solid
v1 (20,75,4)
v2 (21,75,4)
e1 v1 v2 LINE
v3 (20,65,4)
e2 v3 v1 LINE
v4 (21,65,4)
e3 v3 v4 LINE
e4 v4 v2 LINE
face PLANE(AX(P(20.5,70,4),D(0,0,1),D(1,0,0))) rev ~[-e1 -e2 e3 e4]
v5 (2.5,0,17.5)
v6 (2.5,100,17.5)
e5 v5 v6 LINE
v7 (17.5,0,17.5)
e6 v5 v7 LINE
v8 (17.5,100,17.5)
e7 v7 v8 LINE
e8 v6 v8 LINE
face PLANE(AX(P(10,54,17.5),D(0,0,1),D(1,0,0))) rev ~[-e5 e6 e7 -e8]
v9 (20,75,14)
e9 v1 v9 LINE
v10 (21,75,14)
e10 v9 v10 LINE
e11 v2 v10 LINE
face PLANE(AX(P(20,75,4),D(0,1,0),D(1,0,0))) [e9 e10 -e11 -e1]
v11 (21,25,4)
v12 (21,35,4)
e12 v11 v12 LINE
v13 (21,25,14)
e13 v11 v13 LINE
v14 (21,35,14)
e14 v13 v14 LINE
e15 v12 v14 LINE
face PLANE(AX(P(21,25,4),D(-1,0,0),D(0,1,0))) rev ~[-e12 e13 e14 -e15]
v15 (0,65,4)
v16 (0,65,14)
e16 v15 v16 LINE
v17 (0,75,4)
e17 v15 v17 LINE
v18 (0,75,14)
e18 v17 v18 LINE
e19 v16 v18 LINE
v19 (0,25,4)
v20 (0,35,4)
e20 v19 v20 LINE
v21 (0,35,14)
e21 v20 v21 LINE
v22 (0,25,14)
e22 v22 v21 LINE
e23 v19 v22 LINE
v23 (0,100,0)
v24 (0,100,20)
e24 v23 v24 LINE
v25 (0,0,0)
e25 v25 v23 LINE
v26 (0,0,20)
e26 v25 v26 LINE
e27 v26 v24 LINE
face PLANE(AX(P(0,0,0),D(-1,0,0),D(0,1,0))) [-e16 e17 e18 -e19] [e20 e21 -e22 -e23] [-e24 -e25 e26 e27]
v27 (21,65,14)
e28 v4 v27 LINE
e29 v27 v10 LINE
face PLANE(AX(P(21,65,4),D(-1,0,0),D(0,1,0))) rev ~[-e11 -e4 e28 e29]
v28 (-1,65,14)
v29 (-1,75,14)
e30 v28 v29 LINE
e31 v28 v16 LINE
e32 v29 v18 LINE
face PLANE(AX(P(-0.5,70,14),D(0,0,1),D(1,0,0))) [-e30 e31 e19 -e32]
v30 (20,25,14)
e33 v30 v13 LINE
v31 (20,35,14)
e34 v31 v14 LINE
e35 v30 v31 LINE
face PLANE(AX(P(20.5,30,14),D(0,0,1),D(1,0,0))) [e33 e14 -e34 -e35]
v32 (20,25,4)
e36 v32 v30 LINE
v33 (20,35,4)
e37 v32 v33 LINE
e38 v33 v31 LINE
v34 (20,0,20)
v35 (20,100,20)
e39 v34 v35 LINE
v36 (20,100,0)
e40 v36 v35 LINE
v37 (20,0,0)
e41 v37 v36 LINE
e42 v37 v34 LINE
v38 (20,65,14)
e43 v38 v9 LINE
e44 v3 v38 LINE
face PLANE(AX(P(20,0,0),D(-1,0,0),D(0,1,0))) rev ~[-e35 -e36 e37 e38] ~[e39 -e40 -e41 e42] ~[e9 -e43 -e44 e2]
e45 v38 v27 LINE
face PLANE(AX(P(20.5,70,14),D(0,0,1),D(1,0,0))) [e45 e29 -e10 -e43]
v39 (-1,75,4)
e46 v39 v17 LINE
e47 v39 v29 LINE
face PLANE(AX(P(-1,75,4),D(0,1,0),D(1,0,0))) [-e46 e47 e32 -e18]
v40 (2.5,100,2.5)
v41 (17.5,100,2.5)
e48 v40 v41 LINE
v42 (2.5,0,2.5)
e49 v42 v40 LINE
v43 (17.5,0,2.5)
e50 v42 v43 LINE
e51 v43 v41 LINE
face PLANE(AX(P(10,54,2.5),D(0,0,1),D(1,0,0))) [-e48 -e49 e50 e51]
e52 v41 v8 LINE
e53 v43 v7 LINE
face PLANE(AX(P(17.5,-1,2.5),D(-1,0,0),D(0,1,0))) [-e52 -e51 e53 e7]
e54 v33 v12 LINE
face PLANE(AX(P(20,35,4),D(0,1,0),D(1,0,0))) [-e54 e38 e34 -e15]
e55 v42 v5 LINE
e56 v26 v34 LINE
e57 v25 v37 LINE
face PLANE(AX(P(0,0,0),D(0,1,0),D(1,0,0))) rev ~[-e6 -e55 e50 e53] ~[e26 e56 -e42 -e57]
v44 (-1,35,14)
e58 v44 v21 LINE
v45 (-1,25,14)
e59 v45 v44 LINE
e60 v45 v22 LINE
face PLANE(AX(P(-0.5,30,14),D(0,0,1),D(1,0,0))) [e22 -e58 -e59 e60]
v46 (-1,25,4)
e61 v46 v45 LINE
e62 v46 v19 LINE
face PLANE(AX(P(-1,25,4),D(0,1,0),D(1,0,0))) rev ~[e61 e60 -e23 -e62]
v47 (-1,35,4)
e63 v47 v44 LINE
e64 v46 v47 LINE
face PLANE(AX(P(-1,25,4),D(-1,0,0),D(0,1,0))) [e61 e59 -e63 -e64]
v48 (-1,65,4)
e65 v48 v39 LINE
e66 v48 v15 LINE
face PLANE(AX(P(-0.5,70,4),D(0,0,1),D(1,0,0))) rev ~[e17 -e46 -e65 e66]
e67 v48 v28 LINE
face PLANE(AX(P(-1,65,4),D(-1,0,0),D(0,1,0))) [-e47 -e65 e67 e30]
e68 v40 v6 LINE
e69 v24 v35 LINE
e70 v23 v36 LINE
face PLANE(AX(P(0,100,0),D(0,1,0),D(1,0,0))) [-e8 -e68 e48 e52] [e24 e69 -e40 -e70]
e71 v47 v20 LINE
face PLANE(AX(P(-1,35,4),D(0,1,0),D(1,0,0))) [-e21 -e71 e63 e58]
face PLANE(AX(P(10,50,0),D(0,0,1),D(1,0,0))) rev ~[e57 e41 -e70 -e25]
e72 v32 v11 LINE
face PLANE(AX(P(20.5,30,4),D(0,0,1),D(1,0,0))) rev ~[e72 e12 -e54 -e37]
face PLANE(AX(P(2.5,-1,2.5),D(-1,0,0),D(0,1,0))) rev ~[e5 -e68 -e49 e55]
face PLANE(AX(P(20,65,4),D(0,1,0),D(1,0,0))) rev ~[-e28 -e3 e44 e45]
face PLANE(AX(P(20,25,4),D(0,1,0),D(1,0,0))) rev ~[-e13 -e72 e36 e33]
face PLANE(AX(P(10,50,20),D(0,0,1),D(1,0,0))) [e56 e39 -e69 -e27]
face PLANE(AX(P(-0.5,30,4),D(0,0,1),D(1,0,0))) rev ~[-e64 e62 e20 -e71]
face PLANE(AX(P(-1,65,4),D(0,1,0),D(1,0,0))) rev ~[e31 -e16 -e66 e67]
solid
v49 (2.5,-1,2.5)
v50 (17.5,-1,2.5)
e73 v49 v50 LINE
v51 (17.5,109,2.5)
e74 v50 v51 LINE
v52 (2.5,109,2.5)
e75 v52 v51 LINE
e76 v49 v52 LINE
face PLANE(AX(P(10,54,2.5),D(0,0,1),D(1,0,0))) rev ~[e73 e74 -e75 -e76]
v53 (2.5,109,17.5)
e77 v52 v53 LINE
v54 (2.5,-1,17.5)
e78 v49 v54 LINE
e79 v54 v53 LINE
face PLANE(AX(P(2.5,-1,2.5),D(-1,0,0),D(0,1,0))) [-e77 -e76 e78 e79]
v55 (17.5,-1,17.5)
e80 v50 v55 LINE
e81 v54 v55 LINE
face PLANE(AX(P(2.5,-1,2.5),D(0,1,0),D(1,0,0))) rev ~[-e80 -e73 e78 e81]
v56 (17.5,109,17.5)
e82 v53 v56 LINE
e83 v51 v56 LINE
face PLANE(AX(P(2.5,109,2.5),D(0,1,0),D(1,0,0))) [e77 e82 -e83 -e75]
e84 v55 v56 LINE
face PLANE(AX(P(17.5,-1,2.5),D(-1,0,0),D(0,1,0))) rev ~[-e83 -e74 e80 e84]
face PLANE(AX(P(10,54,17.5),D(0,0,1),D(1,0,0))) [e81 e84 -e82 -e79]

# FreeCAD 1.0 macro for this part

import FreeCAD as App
import Part
import Sketcher

V = App.Vector

doc = App.newDocument("Part")
params = doc.addObject("Spreadsheet::Sheet", "Params")
for row, (alias, value) in enumerate([
    ("sketch1_width", "1 mm"),
    ("sketch1_height", "10 mm"),
    ("pad1_length", "10 mm"),
    ("sketch2_width", "1 mm"),
    ("sketch2_height", "10 mm"),
    ("pad2_length", "10 mm"),
    ("sketch3_width", "1 mm"),
    ("sketch3_height", "10 mm"),
    ("pad3_length", "10 mm"),
    ("sketch4_width", "1 mm"),
    ("sketch4_height", "10 mm"),
    ("pad4_length", "10 mm"),
    ("sketch5_width", "15 mm"),
    ("sketch5_height", "110 mm"),
    ("pad5_length", "15 mm"),
    ("sketch6_width", "20 mm"),
    ("sketch6_height", "100 mm"),
    ("pad6_length", "20 mm"),
    ("sketch7_width", "15 mm"),
    ("sketch7_height", "110 mm"),
    ("pad7_length", "15 mm"),
], start=1):
    params.set(f"A{row}", alias)
    params.set(f"B{row}", "=" + value)
    params.setAlias(f"B{row}", alias)

body = doc.addObject("PartDesign::Body", "Body")

sketch1 = body.newObject("Sketcher::SketchObject", "Sketch")
sketch1.AttachmentSupport = (doc.getObject("XY_Plane"), [""])
sketch1.MapMode = "FlatFace"
sketch1.AttachmentOffset = App.Placement(V(0, 0, 4), App.Rotation())
sketch1.addGeometry(Part.LineSegment(V(20, 35, 0), V(20, 25, 0)), False)
sketch1.addGeometry(Part.LineSegment(V(20, 25, 0), V(21, 25, 0)), False)
sketch1.addGeometry(Part.LineSegment(V(21, 25, 0), V(21, 35, 0)), False)
sketch1.addGeometry(Part.LineSegment(V(21, 35, 0), V(20, 35, 0)), False)
sketch1.addConstraint(Sketcher.Constraint("Coincident", 0, 2, 1, 1))
sketch1.addConstraint(Sketcher.Constraint("Coincident", 1, 2, 2, 1))
sketch1.addConstraint(Sketcher.Constraint("Coincident", 2, 2, 3, 1))
sketch1.addConstraint(Sketcher.Constraint("Coincident", 3, 2, 0, 1))
sketch1.addConstraint(Sketcher.Constraint("Vertical", 0))
sketch1.addConstraint(Sketcher.Constraint("Horizontal", 1))
sketch1.addConstraint(Sketcher.Constraint("Vertical", 2))
sketch1.addConstraint(Sketcher.Constraint("Horizontal", 3))
sketch1.addConstraint(Sketcher.Constraint("DistanceX", 1, 1, 1, 2, 1.0))
sketch1.addConstraint(Sketcher.Constraint("DistanceY", 0, 2, 0, 1, 10.0))
sketch1.addConstraint(Sketcher.Constraint("DistanceX", -1, 1, 0, 2, 20.0))
sketch1.addConstraint(Sketcher.Constraint("DistanceY", -1, 1, 0, 2, 25.0))
sketch1.setExpression("Constraints[8]", "Params.sketch1_width")
sketch1.setExpression("Constraints[9]", "Params.sketch1_height")
pad1 = body.newObject("PartDesign::Pad", "Pad")
pad1.Profile = sketch1
pad1.setExpression("Length", "Params.pad1_length")
body2 = doc.addObject("PartDesign::Body", "Body001")

sketch2 = body2.newObject("Sketcher::SketchObject", "Sketch001")
sketch2.AttachmentSupport = (doc.getObject("XY_Plane001"), [""])
sketch2.MapMode = "FlatFace"
sketch2.AttachmentOffset = App.Placement(V(0, 0, 4), App.Rotation())
sketch2.addGeometry(Part.LineSegment(V(20, 75, 0), V(20, 65, 0)), False)
sketch2.addGeometry(Part.LineSegment(V(20, 65, 0), V(21, 65, 0)), False)
sketch2.addGeometry(Part.LineSegment(V(21, 65, 0), V(21, 75, 0)), False)
sketch2.addGeometry(Part.LineSegment(V(21, 75, 0), V(20, 75, 0)), False)
sketch2.addConstraint(Sketcher.Constraint("Coincident", 0, 2, 1, 1))
sketch2.addConstraint(Sketcher.Constraint("Coincident", 1, 2, 2, 1))
sketch2.addConstraint(Sketcher.Constraint("Coincident", 2, 2, 3, 1))
sketch2.addConstraint(Sketcher.Constraint("Coincident", 3, 2, 0, 1))
sketch2.addConstraint(Sketcher.Constraint("Vertical", 0))
sketch2.addConstraint(Sketcher.Constraint("Horizontal", 1))
sketch2.addConstraint(Sketcher.Constraint("Vertical", 2))
sketch2.addConstraint(Sketcher.Constraint("Horizontal", 3))
sketch2.addConstraint(Sketcher.Constraint("DistanceX", 1, 1, 1, 2, 1.0))
sketch2.addConstraint(Sketcher.Constraint("DistanceY", 0, 2, 0, 1, 10.0))
sketch2.addConstraint(Sketcher.Constraint("DistanceX", -1, 1, 0, 2, 20.0))
sketch2.addConstraint(Sketcher.Constraint("DistanceY", -1, 1, 0, 2, 65.0))
sketch2.setExpression("Constraints[8]", "Params.sketch2_width")
sketch2.setExpression("Constraints[9]", "Params.sketch2_height")
pad2 = body2.newObject("PartDesign::Pad", "Pad001")
pad2.Profile = sketch2
pad2.setExpression("Length", "Params.pad2_length")
body3 = doc.addObject("PartDesign::Body", "Body002")

sketch3 = body3.newObject("Sketcher::SketchObject", "Sketch002")
sketch3.AttachmentSupport = (doc.getObject("XY_Plane002"), [""])
sketch3.MapMode = "FlatFace"
sketch3.AttachmentOffset = App.Placement(V(0, 0, 4), App.Rotation())
sketch3.addGeometry(Part.LineSegment(V(-1, 75, 0), V(-1, 65, 0)), False)
sketch3.addGeometry(Part.LineSegment(V(-1, 65, 0), V(0, 65, 0)), False)
sketch3.addGeometry(Part.LineSegment(V(0, 65, 0), V(0, 75, 0)), False)
sketch3.addGeometry(Part.LineSegment(V(0, 75, 0), V(-1, 75, 0)), False)
sketch3.addConstraint(Sketcher.Constraint("Coincident", 0, 2, 1, 1))
sketch3.addConstraint(Sketcher.Constraint("Coincident", 1, 2, 2, 1))
sketch3.addConstraint(Sketcher.Constraint("Coincident", 2, 2, 3, 1))
sketch3.addConstraint(Sketcher.Constraint("Coincident", 3, 2, 0, 1))
sketch3.addConstraint(Sketcher.Constraint("Vertical", 0))
sketch3.addConstraint(Sketcher.Constraint("Horizontal", 1))
sketch3.addConstraint(Sketcher.Constraint("Vertical", 2))
sketch3.addConstraint(Sketcher.Constraint("Horizontal", 3))
sketch3.addConstraint(Sketcher.Constraint("PointOnObject", 1, 2, -2))
sketch3.addConstraint(Sketcher.Constraint("DistanceX", 1, 1, 1, 2, 1.0))
sketch3.addConstraint(Sketcher.Constraint("DistanceY", 0, 2, 0, 1, 10.0))
sketch3.addConstraint(Sketcher.Constraint("DistanceY", -1, 1, 0, 2, 65.0))
sketch3.setExpression("Constraints[9]", "Params.sketch3_width")
sketch3.setExpression("Constraints[10]", "Params.sketch3_height")
pad3 = body3.newObject("PartDesign::Pad", "Pad002")
pad3.Profile = sketch3
pad3.setExpression("Length", "Params.pad3_length")
body4 = doc.addObject("PartDesign::Body", "Body003")

sketch4 = body4.newObject("Sketcher::SketchObject", "Sketch003")
sketch4.AttachmentSupport = (doc.getObject("XY_Plane003"), [""])
sketch4.MapMode = "FlatFace"
sketch4.AttachmentOffset = App.Placement(V(0, 0, 4), App.Rotation())
sketch4.addGeometry(Part.LineSegment(V(-1, 35, 0), V(-1, 25, 0)), False)
sketch4.addGeometry(Part.LineSegment(V(-1, 25, 0), V(0, 25, 0)), False)
sketch4.addGeometry(Part.LineSegment(V(0, 25, 0), V(0, 35, 0)), False)
sketch4.addGeometry(Part.LineSegment(V(0, 35, 0), V(-1, 35, 0)), False)
sketch4.addConstraint(Sketcher.Constraint("Coincident", 0, 2, 1, 1))
sketch4.addConstraint(Sketcher.Constraint("Coincident", 1, 2, 2, 1))
sketch4.addConstraint(Sketcher.Constraint("Coincident", 2, 2, 3, 1))
sketch4.addConstraint(Sketcher.Constraint("Coincident", 3, 2, 0, 1))
sketch4.addConstraint(Sketcher.Constraint("Vertical", 0))
sketch4.addConstraint(Sketcher.Constraint("Horizontal", 1))
sketch4.addConstraint(Sketcher.Constraint("Vertical", 2))
sketch4.addConstraint(Sketcher.Constraint("Horizontal", 3))
sketch4.addConstraint(Sketcher.Constraint("PointOnObject", 1, 2, -2))
sketch4.addConstraint(Sketcher.Constraint("DistanceX", 1, 1, 1, 2, 1.0))
sketch4.addConstraint(Sketcher.Constraint("DistanceY", 0, 2, 0, 1, 10.0))
sketch4.addConstraint(Sketcher.Constraint("DistanceY", -1, 1, 0, 2, 25.0))
sketch4.setExpression("Constraints[9]", "Params.sketch4_width")
sketch4.setExpression("Constraints[10]", "Params.sketch4_height")
pad4 = body4.newObject("PartDesign::Pad", "Pad003")
pad4.Profile = sketch4
pad4.setExpression("Length", "Params.pad4_length")
body5 = doc.addObject("PartDesign::Body", "Body004")

sketch5 = body5.newObject("Sketcher::SketchObject", "Sketch004")
sketch5.AttachmentSupport = (doc.getObject("XY_Plane004"), [""])
sketch5.MapMode = "FlatFace"
sketch5.AttachmentOffset = App.Placement(V(0, 0, 2.5), App.Rotation())
sketch5.addGeometry(Part.LineSegment(V(2, 109, 0), V(2, -1, 0)), False)
sketch5.addGeometry(Part.LineSegment(V(2, -1, 0), V(18, -1, 0)), False)
sketch5.addGeometry(Part.LineSegment(V(18, -1, 0), V(18, 109, 0)), False)
sketch5.addGeometry(Part.LineSegment(V(18, 109, 0), V(2, 109, 0)), False)
sketch5.addConstraint(Sketcher.Constraint("Coincident", 0, 2, 1, 1))
sketch5.addConstraint(Sketcher.Constraint("Coincident", 1, 2, 2, 1))
sketch5.addConstraint(Sketcher.Constraint("Coincident", 2, 2, 3, 1))
sketch5.addConstraint(Sketcher.Constraint("Coincident", 3, 2, 0, 1))
sketch5.addConstraint(Sketcher.Constraint("Vertical", 0))
sketch5.addConstraint(Sketcher.Constraint("Horizontal", 1))
sketch5.addConstraint(Sketcher.Constraint("Vertical", 2))
sketch5.addConstraint(Sketcher.Constraint("Horizontal", 3))
sketch5.addConstraint(Sketcher.Constraint("DistanceX", 1, 1, 1, 2, 15.0))
sketch5.addConstraint(Sketcher.Constraint("DistanceY", 0, 2, 0, 1, 110.0))
sketch5.addConstraint(Sketcher.Constraint("DistanceY", 0, 2, -1, 1, 1.0))
sketch5.addConstraint(Sketcher.Constraint("DistanceX", -1, 1, 0, 2, 2.5))
sketch5.setExpression("Constraints[8]", "Params.sketch5_width")
sketch5.setExpression("Constraints[9]", "Params.sketch5_height")
pad5 = body5.newObject("PartDesign::Pad", "Pad004")
pad5.Profile = sketch5
pad5.setExpression("Length", "Params.pad5_length")
body6 = doc.addObject("PartDesign::Body", "Body005")

sketch6 = body6.newObject("Sketcher::SketchObject", "Sketch005")
sketch6.AttachmentSupport = (doc.getObject("XY_Plane005"), [""])
sketch6.MapMode = "FlatFace"
sketch6.addGeometry(Part.LineSegment(V(0, 100, 0), V(0, 0, 0)), False)
sketch6.addGeometry(Part.LineSegment(V(0, 0, 0), V(20, 0, 0)), False)
sketch6.addGeometry(Part.LineSegment(V(20, 0, 0), V(20, 100, 0)), False)
sketch6.addGeometry(Part.LineSegment(V(20, 100, 0), V(0, 100, 0)), False)
sketch6.addConstraint(Sketcher.Constraint("Coincident", 0, 2, 1, 1))
sketch6.addConstraint(Sketcher.Constraint("Coincident", 1, 2, 2, 1))
sketch6.addConstraint(Sketcher.Constraint("Coincident", 2, 2, 3, 1))
sketch6.addConstraint(Sketcher.Constraint("Coincident", 3, 2, 0, 1))
sketch6.addConstraint(Sketcher.Constraint("Vertical", 0))
sketch6.addConstraint(Sketcher.Constraint("Horizontal", 1))
sketch6.addConstraint(Sketcher.Constraint("Vertical", 2))
sketch6.addConstraint(Sketcher.Constraint("Horizontal", 3))
sketch6.addConstraint(Sketcher.Constraint("Coincident", 0, 2, -1, 1))
sketch6.addConstraint(Sketcher.Constraint("DistanceX", 1, 1, 1, 2, 20.0))
sketch6.addConstraint(Sketcher.Constraint("DistanceY", 0, 2, 0, 1, 100.0))
sketch6.setExpression("Constraints[9]", "Params.sketch6_width")
sketch6.setExpression("Constraints[10]", "Params.sketch6_height")
pad6 = body6.newObject("PartDesign::Pad", "Pad005")
pad6.Profile = sketch6
pad6.setExpression("Length", "Params.pad6_length")
doc.recompute()

boolean = body6.newObject("PartDesign::Boolean", "Boolean")
boolean.Type = "Cut"
boolean.addObjects([body5])
doc.recompute()

boolean2 = body6.newObject("PartDesign::Boolean", "Boolean001")
boolean2.Type = "Fuse"
boolean2.addObjects([body])
doc.recompute()

boolean3 = body6.newObject("PartDesign::Boolean", "Boolean002")
boolean3.Type = "Fuse"
boolean3.addObjects([body2])
doc.recompute()

boolean4 = body6.newObject("PartDesign::Boolean", "Boolean003")
boolean4.Type = "Fuse"
boolean4.addObjects([body3])
doc.recompute()

boolean5 = body6.newObject("PartDesign::Boolean", "Boolean004")
boolean5.Type = "Fuse"
boolean5.addObjects([body4])
body7 = doc.addObject("PartDesign::Body", "Body006")

sketch7 = body7.newObject("Sketcher::SketchObject", "Sketch006")
sketch7.AttachmentSupport = (doc.getObject("XY_Plane006"), [""])
sketch7.MapMode = "FlatFace"
sketch7.AttachmentOffset = App.Placement(V(0, 0, 2.5), App.Rotation())
sketch7.addGeometry(Part.LineSegment(V(2, 109, 0), V(2, -1, 0)), False)
sketch7.addGeometry(Part.LineSegment(V(2, -1, 0), V(18, -1, 0)), False)
sketch7.addGeometry(Part.LineSegment(V(18, -1, 0), V(18, 109, 0)), False)
sketch7.addGeometry(Part.LineSegment(V(18, 109, 0), V(2, 109, 0)), False)
sketch7.addConstraint(Sketcher.Constraint("Coincident", 0, 2, 1, 1))
sketch7.addConstraint(Sketcher.Constraint("Coincident", 1, 2, 2, 1))
sketch7.addConstraint(Sketcher.Constraint("Coincident", 2, 2, 3, 1))
sketch7.addConstraint(Sketcher.Constraint("Coincident", 3, 2, 0, 1))
sketch7.addConstraint(Sketcher.Constraint("Vertical", 0))
sketch7.addConstraint(Sketcher.Constraint("Horizontal", 1))
sketch7.addConstraint(Sketcher.Constraint("Vertical", 2))
sketch7.addConstraint(Sketcher.Constraint("Horizontal", 3))
sketch7.addConstraint(Sketcher.Constraint("DistanceX", 1, 1, 1, 2, 15.0))
sketch7.addConstraint(Sketcher.Constraint("DistanceY", 0, 2, 0, 1, 110.0))
sketch7.addConstraint(Sketcher.Constraint("DistanceY", 0, 2, -1, 1, 1.0))
sketch7.addConstraint(Sketcher.Constraint("DistanceX", -1, 1, 0, 2, 2.5))
sketch7.setExpression("Constraints[8]", "Params.sketch7_width")
sketch7.setExpression("Constraints[9]", "Params.sketch7_height")
pad7 = body7.newObject("PartDesign::Pad", "Pad006")
pad7.Profile = sketch7
pad7.setExpression("Length", "Params.pad7_length")

doc.recompute()
